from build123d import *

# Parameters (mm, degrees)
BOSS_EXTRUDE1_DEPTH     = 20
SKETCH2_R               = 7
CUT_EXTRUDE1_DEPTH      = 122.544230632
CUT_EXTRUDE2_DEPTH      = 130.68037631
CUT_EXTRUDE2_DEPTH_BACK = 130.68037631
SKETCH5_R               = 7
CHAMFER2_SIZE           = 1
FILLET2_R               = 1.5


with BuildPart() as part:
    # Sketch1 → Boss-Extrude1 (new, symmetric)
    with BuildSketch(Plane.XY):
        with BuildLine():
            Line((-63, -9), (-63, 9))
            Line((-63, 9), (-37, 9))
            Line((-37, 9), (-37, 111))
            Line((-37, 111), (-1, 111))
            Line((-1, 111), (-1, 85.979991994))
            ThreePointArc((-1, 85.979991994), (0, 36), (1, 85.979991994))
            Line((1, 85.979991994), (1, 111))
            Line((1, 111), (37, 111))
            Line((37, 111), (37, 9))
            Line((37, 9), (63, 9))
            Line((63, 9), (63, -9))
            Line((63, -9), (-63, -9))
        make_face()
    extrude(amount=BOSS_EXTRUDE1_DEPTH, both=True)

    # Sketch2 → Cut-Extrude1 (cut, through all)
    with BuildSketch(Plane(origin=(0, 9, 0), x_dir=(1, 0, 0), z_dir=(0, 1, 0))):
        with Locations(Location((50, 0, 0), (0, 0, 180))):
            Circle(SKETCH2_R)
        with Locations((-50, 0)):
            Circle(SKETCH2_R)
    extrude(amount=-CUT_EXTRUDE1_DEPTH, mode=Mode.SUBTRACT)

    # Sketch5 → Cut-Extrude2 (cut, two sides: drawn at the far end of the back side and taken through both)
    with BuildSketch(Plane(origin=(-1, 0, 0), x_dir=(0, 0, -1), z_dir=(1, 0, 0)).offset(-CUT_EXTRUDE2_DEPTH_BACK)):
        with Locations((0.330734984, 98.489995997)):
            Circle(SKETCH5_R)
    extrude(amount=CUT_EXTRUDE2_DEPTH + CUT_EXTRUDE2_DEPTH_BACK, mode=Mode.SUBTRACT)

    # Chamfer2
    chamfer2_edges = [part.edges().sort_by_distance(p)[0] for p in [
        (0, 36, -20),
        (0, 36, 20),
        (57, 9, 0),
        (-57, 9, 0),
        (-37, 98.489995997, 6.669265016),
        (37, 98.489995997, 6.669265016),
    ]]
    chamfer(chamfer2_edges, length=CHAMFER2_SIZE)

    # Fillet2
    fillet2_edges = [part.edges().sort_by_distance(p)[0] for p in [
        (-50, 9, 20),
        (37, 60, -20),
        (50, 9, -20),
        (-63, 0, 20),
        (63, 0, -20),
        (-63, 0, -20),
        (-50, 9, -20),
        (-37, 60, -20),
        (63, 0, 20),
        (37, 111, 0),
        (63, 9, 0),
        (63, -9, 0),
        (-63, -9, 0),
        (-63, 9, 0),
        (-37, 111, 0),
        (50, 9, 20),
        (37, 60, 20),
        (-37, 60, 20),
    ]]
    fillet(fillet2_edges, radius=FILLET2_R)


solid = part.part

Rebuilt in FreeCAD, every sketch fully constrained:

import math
import FreeCAD as App
import Part
import Sketcher


def edges_at(feature, points):
    """Names of the edges that pass closest to the given points."""
    edges = feature.Shape.Edges
    near = lambda p: min(range(len(edges)), key=lambda i: edges[i].distToShape(Part.Vertex(*p))[0])
    return sorted({f"Edge{near(p) + 1}" for p in points})

doc = App.newDocument("Part")
body = doc.addObject("PartDesign::Body", "Body")

sketch1 = body.newObject("Sketcher::SketchObject", "Sketch")
sketch1.AttachmentSupport = (doc.getObject("XY_Plane"), [""])
sketch1.MapMode = "FlatFace"
sketch1.addGeometry([
    Part.LineSegment(App.Vector(-63, 9, 0), App.Vector(-63, -9, 0)),
    Part.LineSegment(App.Vector(-63, -9, 0), App.Vector(63, -9, 0)),
    Part.LineSegment(App.Vector(63, -9, 0), App.Vector(63, 9, 0)),
    Part.LineSegment(App.Vector(63, 9, 0), App.Vector(37, 9, 0)),
    Part.LineSegment(App.Vector(37, 9, 0), App.Vector(37, 111, 0)),
    Part.LineSegment(App.Vector(37, 111, 0), App.Vector(1, 111, 0)),
    Part.LineSegment(App.Vector(1, 111, 0), App.Vector(1, 86, 0)),
    Part.ArcOfCircle(Part.Circle(App.Vector(0, 61, 0), App.Vector(0, 0, 1), 25), math.radians(92), math.radians(448)),
    Part.LineSegment(App.Vector(-1, 86, 0), App.Vector(-1, 111, 0)),
    Part.LineSegment(App.Vector(-1, 111, 0), App.Vector(-37, 111, 0)),
    Part.LineSegment(App.Vector(-37, 111, 0), App.Vector(-37, 9, 0)),
    Part.LineSegment(App.Vector(-37, 9, 0), App.Vector(-63, 9, 0)),
], False)
sketch1.addConstraint([
    Sketcher.Constraint("Coincident", 0, 2, 1, 1),
    Sketcher.Constraint("Coincident", 1, 2, 2, 1),
    Sketcher.Constraint("Coincident", 2, 2, 3, 1),
    Sketcher.Constraint("Coincident", 3, 2, 4, 1),
    Sketcher.Constraint("Coincident", 4, 2, 5, 1),
    Sketcher.Constraint("Coincident", 5, 2, 6, 1),
    Sketcher.Constraint("Coincident", 6, 2, 7, 2),
    Sketcher.Constraint("Coincident", 7, 1, 8, 1),
    Sketcher.Constraint("Coincident", 8, 2, 9, 1),
    Sketcher.Constraint("Coincident", 9, 2, 10, 1),
    Sketcher.Constraint("Coincident", 10, 2, 11, 1),
    Sketcher.Constraint("Coincident", 11, 2, 0, 1),
    Sketcher.Constraint("Vertical", 0),
    Sketcher.Constraint("Horizontal", 1),
    Sketcher.Constraint("Vertical", 2),
    Sketcher.Constraint("Horizontal", 3),
    Sketcher.Constraint("Vertical", 4),
    Sketcher.Constraint("Horizontal", 5),
    Sketcher.Constraint("Vertical", 6),
    Sketcher.Constraint("Vertical", 8),
    Sketcher.Constraint("Horizontal", 9),
    Sketcher.Constraint("Vertical", 10),
    Sketcher.Constraint("Horizontal", 11),
    Sketcher.Constraint("Symmetric", 0, 2, 2, 2, -1, 1),
    Sketcher.Constraint("Symmetric", 6, 2, 7, 1, -2),
    Sketcher.Constraint("Symmetric", 4, 2, 9, 2, -2),
    Sketcher.Constraint("Horizontal", 3, 2, 10, 2),
    Sketcher.Constraint("Radius", 7, 25.0),
    Sketcher.Constraint("DistanceX", 1, 1, 1, 2, 126.0),
    Sketcher.Constraint("DistanceX", 3, 2, 3, 1, 26.0),
    Sketcher.Constraint("DistanceX", 5, 2, 5, 1, 36.0),
    Sketcher.Constraint("DistanceY", 0, 2, 0, 1, 18.0),
    Sketcher.Constraint("DistanceY", 4, 1, 4, 2, 102.0),
    Sketcher.Constraint("DistanceY", -1, 1, 7, 3, 61.0),
])
pad1 = body.newObject("PartDesign::Pad", "Pad")
pad1.Profile = sketch1
pad1.Length = 40
pad1.Midplane = True

sketch2 = body.newObject("Sketcher::SketchObject", "Sketch001")
sketch2.AttachmentSupport = (doc.getObject("XZ_Plane"), [""])
sketch2.MapMode = "FlatFace"
sketch2.AttachmentOffset = App.Placement(App.Vector(0, 0, -9), App.Rotation())
sketch2.addGeometry([
    Part.Circle(App.Vector(50, 0, 0), App.Vector(0, 0, 1), 7),
    Part.Circle(App.Vector(-50, 0, 0), App.Vector(0, 0, 1), 7),
], False)
sketch2.addConstraint([
    Sketcher.Constraint("Equal", 0, 1),
    Sketcher.Constraint("Symmetric", 0, 3, 1, 3, -1, 1),
    Sketcher.Constraint("PointOnObject", 0, 3, -1),
    Sketcher.Constraint("Diameter", 0, 14.0),
    Sketcher.Constraint("DistanceX", -1, 1, 0, 3, 50.0),
])
pocket1 = body.newObject("PartDesign::Pocket", "Pocket")
pocket1.Profile = sketch2
pocket1.Type = "ThroughAll"
pocket1.Reversed = True

sketch3 = body.newObject("Sketcher::SketchObject", "Sketch002")
sketch3.AttachmentSupport = (doc.getObject("YZ_Plane"), [""])
sketch3.MapMode = "FlatFace"
sketch3.AttachmentOffset = App.Placement(App.Vector(0, 0, -1), App.Rotation())
sketch3.addGeometry(Part.Circle(App.Vector(98, 0, 0), App.Vector(0, 0, 1), 7), False)
sketch3.addConstraint([
    Sketcher.Constraint("Diameter", 0, 14.0),
    Sketcher.Constraint("DistanceX", -1, 1, 0, 3, 98.489996),
    Sketcher.Constraint("DistanceY", 0, 3, -1, 1, 0.330735),
])
pocket2 = body.newObject("PartDesign::Pocket", "Pocket001")
pocket2.Profile = sketch3
pocket2.Type = "ThroughAll"
pocket2.Midplane = True
doc.recompute()

chamfer = body.newObject("PartDesign::Chamfer", "Chamfer")
chamfer.Base = (pocket2, edges_at(pocket2, [
    (0, 36, -20),
    (0, 36, 20),
    (57, 9, 0),
    (-57, 9, 0),
    (-37, 98.49, 6.669),
    (37, 98.49, 6.669),
]))
chamfer.Size = 1
doc.recompute()

fillet = body.newObject("PartDesign::Fillet", "Fillet")
fillet.Base = (chamfer, edges_at(chamfer, [
    (-50, 9, 20),
    (37, 60, -20),
    (50, 9, -20),
    (-63, 0, 20),
    (63, 0, -20),
    (-63, 0, -20),
    (-50, 9, -20),
    (-37, 60, -20),
    (63, 0, 20),
    (37, 111, 0),
    (63, 9, 0),
    (63, -9, 0),
    (-63, -9, 0),
    (-63, 9, 0),
    (-37, 111, 0),
    (50, 9, 20),
    (37, 60, 20),
    (-37, 60, 20),
]))
fillet.Radius = 1.5

doc.recompute()
